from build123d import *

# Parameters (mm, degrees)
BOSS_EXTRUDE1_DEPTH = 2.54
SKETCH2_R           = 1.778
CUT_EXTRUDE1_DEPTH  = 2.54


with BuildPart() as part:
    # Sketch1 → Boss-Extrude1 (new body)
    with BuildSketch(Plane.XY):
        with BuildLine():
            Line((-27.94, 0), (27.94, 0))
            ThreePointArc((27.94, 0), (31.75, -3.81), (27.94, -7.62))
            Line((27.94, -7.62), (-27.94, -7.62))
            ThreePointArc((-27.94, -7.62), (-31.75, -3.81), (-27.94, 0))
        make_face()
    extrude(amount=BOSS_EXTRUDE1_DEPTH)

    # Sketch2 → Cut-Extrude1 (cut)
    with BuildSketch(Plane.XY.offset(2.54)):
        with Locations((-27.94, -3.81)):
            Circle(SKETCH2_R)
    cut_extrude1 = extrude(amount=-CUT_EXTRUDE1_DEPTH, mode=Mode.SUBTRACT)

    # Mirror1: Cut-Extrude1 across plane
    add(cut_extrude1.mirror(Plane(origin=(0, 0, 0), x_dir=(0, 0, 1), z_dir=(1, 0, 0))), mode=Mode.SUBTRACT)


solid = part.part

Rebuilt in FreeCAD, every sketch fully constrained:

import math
import FreeCAD as App
import Part
import Sketcher
from FreeCAD import Vector
Q = App.Units.Quantity

doc = App.newDocument("Part")
body = doc.addObject("PartDesign::Body", "Body")

sketch1 = body.newObject("Sketcher::SketchObject", "Sketch")
sketch1.AttachmentSupport = (doc.getObject("XY_Plane"), [""])
sketch1.MapMode = "FlatFace"
sketch1.addGeometry([
    Part.LineSegment(Vector(27.9, 0, 0), Vector(-27.9, 0, 0)),
    Part.ArcOfCircle(Part.Circle(Vector(-27.9, -3.8, 0), Vector(0, 0, 1), 3.8), math.radians(90), math.radians(270)),
    Part.LineSegment(Vector(-27.9, -7.6, 0), Vector(27.9, -7.6, 0)),
    Part.ArcOfCircle(Part.Circle(Vector(27.9, -3.8, 0), Vector(0, 0, 1), 3.8), math.radians(-90), math.radians(90)),
], False)
sketch1.addConstraint([
    Sketcher.Constraint("Tangent", 0, 2, 1, 1),
    Sketcher.Constraint("Tangent", 1, 2, 2, 1),
    Sketcher.Constraint("Tangent", 2, 2, 3, 1),
    Sketcher.Constraint("Tangent", 3, 2, 0, 1),
    Sketcher.Constraint("Horizontal", 0),
    Sketcher.Constraint("Horizontal", 2),
    Sketcher.Constraint("Symmetric", 0, 2, 3, 2, -1, 1),
    Sketcher.Constraint("Radius", 1, Q("0.15 in")),
    Sketcher.Constraint("DistanceX", 0, 2, 0, 1, Q("2.2 in")),
])
pad1 = body.newObject("PartDesign::Pad", "Pad")
pad1.Profile = sketch1
pad1.Length = Q("0.1 in")

sketch2 = body.newObject("Sketcher::SketchObject", "Sketch001")
sketch2.AttachmentSupport = (doc.getObject("XY_Plane"), [""])
sketch2.MapMode = "FlatFace"
sketch2.AttachmentOffset = App.Placement(Vector(0, 0, 0.1 * 25.4), App.Rotation())
sketch2.addGeometry(Part.Circle(Vector(-27.9, -3.8, 0), Vector(0, 0, 1), 1.8), False)
sketch2.addConstraint([
    Sketcher.Constraint("Diameter", 0, Q("0.14 in")),
    Sketcher.Constraint("DistanceX", 0, 3, -1, 1, Q("1.1 in")),
    Sketcher.Constraint("DistanceY", 0, 3, -1, 1, Q("0.15 in")),
])
pocket1 = body.newObject("PartDesign::Pocket", "Pocket")
pocket1.Profile = sketch2
pocket1.Length = Q("0.1 in")
doc.recompute()

mirrored = body.newObject("PartDesign::Mirrored", "Mirrored")
mirrored.Originals = [pocket1]
mirrored.MirrorPlane = (doc.getObject("YZ_Plane"), [""])
body.Tip = mirrored

doc.recompute()
